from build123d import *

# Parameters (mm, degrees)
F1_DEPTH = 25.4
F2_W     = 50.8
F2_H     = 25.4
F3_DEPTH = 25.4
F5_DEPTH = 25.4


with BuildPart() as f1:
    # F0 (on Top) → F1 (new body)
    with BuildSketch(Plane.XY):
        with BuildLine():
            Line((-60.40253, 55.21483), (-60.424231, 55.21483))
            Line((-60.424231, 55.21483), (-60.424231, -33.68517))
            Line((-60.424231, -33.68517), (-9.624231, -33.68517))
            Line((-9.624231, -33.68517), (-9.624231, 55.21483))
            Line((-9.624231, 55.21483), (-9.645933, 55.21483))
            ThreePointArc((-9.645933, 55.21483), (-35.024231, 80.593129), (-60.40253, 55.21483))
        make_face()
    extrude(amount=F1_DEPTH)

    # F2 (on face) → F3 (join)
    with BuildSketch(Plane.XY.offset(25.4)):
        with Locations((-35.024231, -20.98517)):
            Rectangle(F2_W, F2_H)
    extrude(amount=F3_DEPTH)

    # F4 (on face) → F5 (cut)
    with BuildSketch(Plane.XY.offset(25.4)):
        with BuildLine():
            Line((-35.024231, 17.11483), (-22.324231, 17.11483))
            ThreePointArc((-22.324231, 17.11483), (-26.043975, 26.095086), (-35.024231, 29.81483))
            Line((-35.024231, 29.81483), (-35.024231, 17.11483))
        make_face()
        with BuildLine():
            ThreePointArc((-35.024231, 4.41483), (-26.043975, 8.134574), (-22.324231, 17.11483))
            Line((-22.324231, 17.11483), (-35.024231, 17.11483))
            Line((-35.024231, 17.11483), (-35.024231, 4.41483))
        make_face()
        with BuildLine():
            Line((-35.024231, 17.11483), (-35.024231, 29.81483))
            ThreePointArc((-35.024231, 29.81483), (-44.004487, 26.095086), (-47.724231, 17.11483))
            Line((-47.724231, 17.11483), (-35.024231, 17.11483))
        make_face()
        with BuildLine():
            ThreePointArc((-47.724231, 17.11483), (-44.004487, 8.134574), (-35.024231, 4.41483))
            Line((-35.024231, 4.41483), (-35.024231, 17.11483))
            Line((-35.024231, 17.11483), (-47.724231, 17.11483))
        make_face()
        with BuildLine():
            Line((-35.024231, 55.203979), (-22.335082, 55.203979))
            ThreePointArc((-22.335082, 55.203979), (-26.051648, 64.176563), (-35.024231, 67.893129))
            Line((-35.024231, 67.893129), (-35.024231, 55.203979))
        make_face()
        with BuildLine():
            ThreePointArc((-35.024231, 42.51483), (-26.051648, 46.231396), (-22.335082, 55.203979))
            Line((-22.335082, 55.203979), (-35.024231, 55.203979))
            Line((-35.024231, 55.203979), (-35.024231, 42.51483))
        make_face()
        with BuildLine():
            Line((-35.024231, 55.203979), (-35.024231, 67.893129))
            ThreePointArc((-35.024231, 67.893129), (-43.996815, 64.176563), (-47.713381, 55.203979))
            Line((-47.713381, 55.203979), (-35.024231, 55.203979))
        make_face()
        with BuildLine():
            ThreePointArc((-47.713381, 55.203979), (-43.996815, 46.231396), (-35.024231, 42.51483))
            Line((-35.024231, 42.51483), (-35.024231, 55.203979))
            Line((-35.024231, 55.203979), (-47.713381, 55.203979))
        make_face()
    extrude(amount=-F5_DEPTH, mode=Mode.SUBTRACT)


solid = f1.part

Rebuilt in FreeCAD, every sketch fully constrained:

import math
import FreeCAD as App
import Part
import Sketcher

V = App.Vector
Q = App.Units.Quantity

doc = App.newDocument("Part")
body = doc.addObject("PartDesign::Body", "Body")

# Sketch on XY plane
sketch1 = body.newObject("Sketcher::SketchObject", "Sketch")
sketch1.AttachmentSupport = (doc.getObject("XY_Plane"), [""])
sketch1.MapMode = "FlatFace"
sketch1.addGeometry(Part.LineSegment(V(-60.403, 55.215, 0), V(-60.424, 55.215, 0)), False)
sketch1.addGeometry(Part.LineSegment(V(-60.424, 55.215, 0), V(-60.424, -33.685, 0)), False)
sketch1.addGeometry(Part.LineSegment(V(-60.424, -33.685, 0), V(-9.624, -33.685, 0)), False)
sketch1.addGeometry(Part.LineSegment(V(-9.624, -33.685, 0), V(-9.624, 55.215, 0)), False)
sketch1.addGeometry(Part.LineSegment(V(-9.624, 55.215, 0), V(-9.646, 55.215, 0)), False)
sketch1.addGeometry(Part.ArcOfCircle(Part.Circle(V(-35.024, 55.215, 0), V(0, 0, 1), 25.378), math.radians(0), math.radians(180)), False)
sketch1.addConstraint(Sketcher.Constraint("Coincident", 0, 2, 1, 1))
sketch1.addConstraint(Sketcher.Constraint("Coincident", 1, 2, 2, 1))
sketch1.addConstraint(Sketcher.Constraint("Coincident", 2, 2, 3, 1))
sketch1.addConstraint(Sketcher.Constraint("Coincident", 3, 2, 4, 1))
sketch1.addConstraint(Sketcher.Constraint("Coincident", 4, 2, 5, 1))
sketch1.addConstraint(Sketcher.Constraint("Coincident", 5, 2, 0, 1))
sketch1.addConstraint(Sketcher.Constraint("Horizontal", 0))
sketch1.addConstraint(Sketcher.Constraint("Vertical", 1))
sketch1.addConstraint(Sketcher.Constraint("Horizontal", 2))
sketch1.addConstraint(Sketcher.Constraint("Vertical", 3))
sketch1.addConstraint(Sketcher.Constraint("Horizontal", 4))
sketch1.addConstraint(Sketcher.Constraint("Horizontal", 5, 3, 0, 2))
sketch1.addConstraint(Sketcher.Constraint("Horizontal", 0, 2, 3, 2))
sketch1.addConstraint(Sketcher.Constraint("Equal", 0, 4))
sketch1.addConstraint(Sketcher.Constraint("DistanceX", 2, 1, 2, 2, Q("2 in")))
sketch1.addConstraint(Sketcher.Constraint("DistanceY", 1, 2, 1, 1, Q("3.5 in")))
sketch1.addConstraint(Sketcher.Constraint("Radius", 5, 25.378298))
sketch1.addConstraint(Sketcher.Constraint("DistanceX", 5, 3, -1, 1, 35.024231))
sketch1.addConstraint(Sketcher.Constraint("DistanceY", -1, 1, 5, 3, 55.21483))
pad1 = body.newObject("PartDesign::Pad", "Pad")
pad1.Profile = sketch1
pad1.Length = Q("1 in")

# Sketch on XY plane
sketch2 = body.newObject("Sketcher::SketchObject", "Sketch001")
sketch2.AttachmentSupport = (doc.getObject("XY_Plane"), [""])
sketch2.MapMode = "FlatFace"
sketch2.AttachmentOffset = App.Placement(V(0, 0, 1 * 25.4), App.Rotation())
sketch2.addGeometry(Part.LineSegment(V(-60, -8, 0), V(-60, -34, 0)), False)
sketch2.addGeometry(Part.LineSegment(V(-60, -34, 0), V(-10, -34, 0)), False)
sketch2.addGeometry(Part.LineSegment(V(-10, -34, 0), V(-10, -8, 0)), False)
sketch2.addGeometry(Part.LineSegment(V(-10, -8, 0), V(-60, -8, 0)), False)
sketch2.addConstraint(Sketcher.Constraint("Coincident", 0, 2, 1, 1))
sketch2.addConstraint(Sketcher.Constraint("Coincident", 1, 2, 2, 1))
sketch2.addConstraint(Sketcher.Constraint("Coincident", 2, 2, 3, 1))
sketch2.addConstraint(Sketcher.Constraint("Coincident", 3, 2, 0, 1))
sketch2.addConstraint(Sketcher.Constraint("Vertical", 0))
sketch2.addConstraint(Sketcher.Constraint("Horizontal", 1))
sketch2.addConstraint(Sketcher.Constraint("Vertical", 2))
sketch2.addConstraint(Sketcher.Constraint("Horizontal", 3))
sketch2.addConstraint(Sketcher.Constraint("DistanceX", 1, 1, 1, 2, Q("2 in")))
sketch2.addConstraint(Sketcher.Constraint("DistanceY", 0, 2, 0, 1, Q("1 in")))
sketch2.addConstraint(Sketcher.Constraint("DistanceX", 0, 2, -1, 1, 60.424231))
sketch2.addConstraint(Sketcher.Constraint("DistanceY", 0, 2, -1, 1, 33.68517))
pad2 = body.newObject("PartDesign::Pad", "Pad001")
pad2.Profile = sketch2
pad2.Length = Q("1 in")

# Sketch on XY plane
sketch3 = body.newObject("Sketcher::SketchObject", "Sketch002")
sketch3.AttachmentSupport = (doc.getObject("XY_Plane"), [""])
sketch3.MapMode = "FlatFace"
sketch3.AttachmentOffset = App.Placement(V(0, 0, 1 * 25.4), App.Rotation())
sketch3.addGeometry(Part.ArcOfCircle(Part.Circle(V(-35, 17, 0), V(0, 0, 1), 13), math.radians(0), math.radians(90)), False)
sketch3.addGeometry(Part.ArcOfCircle(Part.Circle(V(-35, 17, 0), V(0, 0, 1), 13), math.radians(90), math.radians(180)), False)
sketch3.addGeometry(Part.ArcOfCircle(Part.Circle(V(-35, 17, 0), V(0, 0, 1), 13), math.radians(-180), math.radians(-90)), False)
sketch3.addGeometry(Part.ArcOfCircle(Part.Circle(V(-35, 17, 0), V(0, 0, 1), 13), math.radians(-90), math.radians(0)), False)
sketch3.addGeometry(Part.ArcOfCircle(Part.Circle(V(-35, 55, 0), V(0, 0, 1), 13), math.radians(0), math.radians(90)), False)
sketch3.addGeometry(Part.ArcOfCircle(Part.Circle(V(-35, 55, 0), V(0, 0, 1), 13), math.radians(90), math.radians(180)), False)
sketch3.addGeometry(Part.ArcOfCircle(Part.Circle(V(-35, 55, 0), V(0, 0, 1), 13), math.radians(-180), math.radians(-90)), False)
sketch3.addGeometry(Part.ArcOfCircle(Part.Circle(V(-35, 55, 0), V(0, 0, 1), 13), math.radians(-90), math.radians(0)), False)
sketch3.addConstraint(Sketcher.Constraint("Tangent", 0, 2, 1, 1))
sketch3.addConstraint(Sketcher.Constraint("Tangent", 1, 2, 2, 1))
sketch3.addConstraint(Sketcher.Constraint("Tangent", 2, 2, 3, 1))
sketch3.addConstraint(Sketcher.Constraint("Tangent", 3, 2, 0, 1))
sketch3.addConstraint(Sketcher.Constraint("Tangent", 4, 2, 5, 1))
sketch3.addConstraint(Sketcher.Constraint("Tangent", 5, 2, 6, 1))
sketch3.addConstraint(Sketcher.Constraint("Tangent", 6, 2, 7, 1))
sketch3.addConstraint(Sketcher.Constraint("Tangent", 7, 2, 4, 1))
sketch3.addConstraint(Sketcher.Constraint("Equal", 0, 1))
sketch3.addConstraint(Sketcher.Constraint("Equal", 4, 5))
sketch3.addConstraint(Sketcher.Constraint("Horizontal", 3, 3, 1, 2))
sketch3.addConstraint(Sketcher.Constraint("Horizontal", 1, 2, 3, 2))
sketch3.addConstraint(Sketcher.Constraint("Horizontal", 7, 3, 5, 2))
sketch3.addConstraint(Sketcher.Constraint("Horizontal", 5, 2, 7, 2))
sketch3.addConstraint(Sketcher.Constraint("Vertical", 3, 3, 4, 3))
sketch3.addConstraint(Sketcher.Constraint("Vertical", 7, 3, 0, 2))
sketch3.addConstraint(Sketcher.Constraint("Vertical", 0, 2, 2, 2))
sketch3.addConstraint(Sketcher.Constraint("Vertical", 2, 2, 4, 2))
sketch3.addConstraint(Sketcher.Constraint("Vertical", 4, 2, 6, 2))
sketch3.addConstraint(Sketcher.Constraint("Radius", 0, Q("0.5 in")))
sketch3.addConstraint(Sketcher.Constraint("DistanceY", 0, 2, 6, 2, Q("0.5 in")))
sketch3.addConstraint(Sketcher.Constraint("Radius", 4, 12.68915))
sketch3.addConstraint(Sketcher.Constraint("DistanceX", 0, 3, -1, 1, 35.024231))
sketch3.addConstraint(Sketcher.Constraint("DistanceY", -1, 1, 0, 3, 17.11483))
pocket1 = body.newObject("PartDesign::Pocket", "Pocket")
pocket1.Profile = sketch3
pocket1.Length = Q("1 in")

doc.recompute()
